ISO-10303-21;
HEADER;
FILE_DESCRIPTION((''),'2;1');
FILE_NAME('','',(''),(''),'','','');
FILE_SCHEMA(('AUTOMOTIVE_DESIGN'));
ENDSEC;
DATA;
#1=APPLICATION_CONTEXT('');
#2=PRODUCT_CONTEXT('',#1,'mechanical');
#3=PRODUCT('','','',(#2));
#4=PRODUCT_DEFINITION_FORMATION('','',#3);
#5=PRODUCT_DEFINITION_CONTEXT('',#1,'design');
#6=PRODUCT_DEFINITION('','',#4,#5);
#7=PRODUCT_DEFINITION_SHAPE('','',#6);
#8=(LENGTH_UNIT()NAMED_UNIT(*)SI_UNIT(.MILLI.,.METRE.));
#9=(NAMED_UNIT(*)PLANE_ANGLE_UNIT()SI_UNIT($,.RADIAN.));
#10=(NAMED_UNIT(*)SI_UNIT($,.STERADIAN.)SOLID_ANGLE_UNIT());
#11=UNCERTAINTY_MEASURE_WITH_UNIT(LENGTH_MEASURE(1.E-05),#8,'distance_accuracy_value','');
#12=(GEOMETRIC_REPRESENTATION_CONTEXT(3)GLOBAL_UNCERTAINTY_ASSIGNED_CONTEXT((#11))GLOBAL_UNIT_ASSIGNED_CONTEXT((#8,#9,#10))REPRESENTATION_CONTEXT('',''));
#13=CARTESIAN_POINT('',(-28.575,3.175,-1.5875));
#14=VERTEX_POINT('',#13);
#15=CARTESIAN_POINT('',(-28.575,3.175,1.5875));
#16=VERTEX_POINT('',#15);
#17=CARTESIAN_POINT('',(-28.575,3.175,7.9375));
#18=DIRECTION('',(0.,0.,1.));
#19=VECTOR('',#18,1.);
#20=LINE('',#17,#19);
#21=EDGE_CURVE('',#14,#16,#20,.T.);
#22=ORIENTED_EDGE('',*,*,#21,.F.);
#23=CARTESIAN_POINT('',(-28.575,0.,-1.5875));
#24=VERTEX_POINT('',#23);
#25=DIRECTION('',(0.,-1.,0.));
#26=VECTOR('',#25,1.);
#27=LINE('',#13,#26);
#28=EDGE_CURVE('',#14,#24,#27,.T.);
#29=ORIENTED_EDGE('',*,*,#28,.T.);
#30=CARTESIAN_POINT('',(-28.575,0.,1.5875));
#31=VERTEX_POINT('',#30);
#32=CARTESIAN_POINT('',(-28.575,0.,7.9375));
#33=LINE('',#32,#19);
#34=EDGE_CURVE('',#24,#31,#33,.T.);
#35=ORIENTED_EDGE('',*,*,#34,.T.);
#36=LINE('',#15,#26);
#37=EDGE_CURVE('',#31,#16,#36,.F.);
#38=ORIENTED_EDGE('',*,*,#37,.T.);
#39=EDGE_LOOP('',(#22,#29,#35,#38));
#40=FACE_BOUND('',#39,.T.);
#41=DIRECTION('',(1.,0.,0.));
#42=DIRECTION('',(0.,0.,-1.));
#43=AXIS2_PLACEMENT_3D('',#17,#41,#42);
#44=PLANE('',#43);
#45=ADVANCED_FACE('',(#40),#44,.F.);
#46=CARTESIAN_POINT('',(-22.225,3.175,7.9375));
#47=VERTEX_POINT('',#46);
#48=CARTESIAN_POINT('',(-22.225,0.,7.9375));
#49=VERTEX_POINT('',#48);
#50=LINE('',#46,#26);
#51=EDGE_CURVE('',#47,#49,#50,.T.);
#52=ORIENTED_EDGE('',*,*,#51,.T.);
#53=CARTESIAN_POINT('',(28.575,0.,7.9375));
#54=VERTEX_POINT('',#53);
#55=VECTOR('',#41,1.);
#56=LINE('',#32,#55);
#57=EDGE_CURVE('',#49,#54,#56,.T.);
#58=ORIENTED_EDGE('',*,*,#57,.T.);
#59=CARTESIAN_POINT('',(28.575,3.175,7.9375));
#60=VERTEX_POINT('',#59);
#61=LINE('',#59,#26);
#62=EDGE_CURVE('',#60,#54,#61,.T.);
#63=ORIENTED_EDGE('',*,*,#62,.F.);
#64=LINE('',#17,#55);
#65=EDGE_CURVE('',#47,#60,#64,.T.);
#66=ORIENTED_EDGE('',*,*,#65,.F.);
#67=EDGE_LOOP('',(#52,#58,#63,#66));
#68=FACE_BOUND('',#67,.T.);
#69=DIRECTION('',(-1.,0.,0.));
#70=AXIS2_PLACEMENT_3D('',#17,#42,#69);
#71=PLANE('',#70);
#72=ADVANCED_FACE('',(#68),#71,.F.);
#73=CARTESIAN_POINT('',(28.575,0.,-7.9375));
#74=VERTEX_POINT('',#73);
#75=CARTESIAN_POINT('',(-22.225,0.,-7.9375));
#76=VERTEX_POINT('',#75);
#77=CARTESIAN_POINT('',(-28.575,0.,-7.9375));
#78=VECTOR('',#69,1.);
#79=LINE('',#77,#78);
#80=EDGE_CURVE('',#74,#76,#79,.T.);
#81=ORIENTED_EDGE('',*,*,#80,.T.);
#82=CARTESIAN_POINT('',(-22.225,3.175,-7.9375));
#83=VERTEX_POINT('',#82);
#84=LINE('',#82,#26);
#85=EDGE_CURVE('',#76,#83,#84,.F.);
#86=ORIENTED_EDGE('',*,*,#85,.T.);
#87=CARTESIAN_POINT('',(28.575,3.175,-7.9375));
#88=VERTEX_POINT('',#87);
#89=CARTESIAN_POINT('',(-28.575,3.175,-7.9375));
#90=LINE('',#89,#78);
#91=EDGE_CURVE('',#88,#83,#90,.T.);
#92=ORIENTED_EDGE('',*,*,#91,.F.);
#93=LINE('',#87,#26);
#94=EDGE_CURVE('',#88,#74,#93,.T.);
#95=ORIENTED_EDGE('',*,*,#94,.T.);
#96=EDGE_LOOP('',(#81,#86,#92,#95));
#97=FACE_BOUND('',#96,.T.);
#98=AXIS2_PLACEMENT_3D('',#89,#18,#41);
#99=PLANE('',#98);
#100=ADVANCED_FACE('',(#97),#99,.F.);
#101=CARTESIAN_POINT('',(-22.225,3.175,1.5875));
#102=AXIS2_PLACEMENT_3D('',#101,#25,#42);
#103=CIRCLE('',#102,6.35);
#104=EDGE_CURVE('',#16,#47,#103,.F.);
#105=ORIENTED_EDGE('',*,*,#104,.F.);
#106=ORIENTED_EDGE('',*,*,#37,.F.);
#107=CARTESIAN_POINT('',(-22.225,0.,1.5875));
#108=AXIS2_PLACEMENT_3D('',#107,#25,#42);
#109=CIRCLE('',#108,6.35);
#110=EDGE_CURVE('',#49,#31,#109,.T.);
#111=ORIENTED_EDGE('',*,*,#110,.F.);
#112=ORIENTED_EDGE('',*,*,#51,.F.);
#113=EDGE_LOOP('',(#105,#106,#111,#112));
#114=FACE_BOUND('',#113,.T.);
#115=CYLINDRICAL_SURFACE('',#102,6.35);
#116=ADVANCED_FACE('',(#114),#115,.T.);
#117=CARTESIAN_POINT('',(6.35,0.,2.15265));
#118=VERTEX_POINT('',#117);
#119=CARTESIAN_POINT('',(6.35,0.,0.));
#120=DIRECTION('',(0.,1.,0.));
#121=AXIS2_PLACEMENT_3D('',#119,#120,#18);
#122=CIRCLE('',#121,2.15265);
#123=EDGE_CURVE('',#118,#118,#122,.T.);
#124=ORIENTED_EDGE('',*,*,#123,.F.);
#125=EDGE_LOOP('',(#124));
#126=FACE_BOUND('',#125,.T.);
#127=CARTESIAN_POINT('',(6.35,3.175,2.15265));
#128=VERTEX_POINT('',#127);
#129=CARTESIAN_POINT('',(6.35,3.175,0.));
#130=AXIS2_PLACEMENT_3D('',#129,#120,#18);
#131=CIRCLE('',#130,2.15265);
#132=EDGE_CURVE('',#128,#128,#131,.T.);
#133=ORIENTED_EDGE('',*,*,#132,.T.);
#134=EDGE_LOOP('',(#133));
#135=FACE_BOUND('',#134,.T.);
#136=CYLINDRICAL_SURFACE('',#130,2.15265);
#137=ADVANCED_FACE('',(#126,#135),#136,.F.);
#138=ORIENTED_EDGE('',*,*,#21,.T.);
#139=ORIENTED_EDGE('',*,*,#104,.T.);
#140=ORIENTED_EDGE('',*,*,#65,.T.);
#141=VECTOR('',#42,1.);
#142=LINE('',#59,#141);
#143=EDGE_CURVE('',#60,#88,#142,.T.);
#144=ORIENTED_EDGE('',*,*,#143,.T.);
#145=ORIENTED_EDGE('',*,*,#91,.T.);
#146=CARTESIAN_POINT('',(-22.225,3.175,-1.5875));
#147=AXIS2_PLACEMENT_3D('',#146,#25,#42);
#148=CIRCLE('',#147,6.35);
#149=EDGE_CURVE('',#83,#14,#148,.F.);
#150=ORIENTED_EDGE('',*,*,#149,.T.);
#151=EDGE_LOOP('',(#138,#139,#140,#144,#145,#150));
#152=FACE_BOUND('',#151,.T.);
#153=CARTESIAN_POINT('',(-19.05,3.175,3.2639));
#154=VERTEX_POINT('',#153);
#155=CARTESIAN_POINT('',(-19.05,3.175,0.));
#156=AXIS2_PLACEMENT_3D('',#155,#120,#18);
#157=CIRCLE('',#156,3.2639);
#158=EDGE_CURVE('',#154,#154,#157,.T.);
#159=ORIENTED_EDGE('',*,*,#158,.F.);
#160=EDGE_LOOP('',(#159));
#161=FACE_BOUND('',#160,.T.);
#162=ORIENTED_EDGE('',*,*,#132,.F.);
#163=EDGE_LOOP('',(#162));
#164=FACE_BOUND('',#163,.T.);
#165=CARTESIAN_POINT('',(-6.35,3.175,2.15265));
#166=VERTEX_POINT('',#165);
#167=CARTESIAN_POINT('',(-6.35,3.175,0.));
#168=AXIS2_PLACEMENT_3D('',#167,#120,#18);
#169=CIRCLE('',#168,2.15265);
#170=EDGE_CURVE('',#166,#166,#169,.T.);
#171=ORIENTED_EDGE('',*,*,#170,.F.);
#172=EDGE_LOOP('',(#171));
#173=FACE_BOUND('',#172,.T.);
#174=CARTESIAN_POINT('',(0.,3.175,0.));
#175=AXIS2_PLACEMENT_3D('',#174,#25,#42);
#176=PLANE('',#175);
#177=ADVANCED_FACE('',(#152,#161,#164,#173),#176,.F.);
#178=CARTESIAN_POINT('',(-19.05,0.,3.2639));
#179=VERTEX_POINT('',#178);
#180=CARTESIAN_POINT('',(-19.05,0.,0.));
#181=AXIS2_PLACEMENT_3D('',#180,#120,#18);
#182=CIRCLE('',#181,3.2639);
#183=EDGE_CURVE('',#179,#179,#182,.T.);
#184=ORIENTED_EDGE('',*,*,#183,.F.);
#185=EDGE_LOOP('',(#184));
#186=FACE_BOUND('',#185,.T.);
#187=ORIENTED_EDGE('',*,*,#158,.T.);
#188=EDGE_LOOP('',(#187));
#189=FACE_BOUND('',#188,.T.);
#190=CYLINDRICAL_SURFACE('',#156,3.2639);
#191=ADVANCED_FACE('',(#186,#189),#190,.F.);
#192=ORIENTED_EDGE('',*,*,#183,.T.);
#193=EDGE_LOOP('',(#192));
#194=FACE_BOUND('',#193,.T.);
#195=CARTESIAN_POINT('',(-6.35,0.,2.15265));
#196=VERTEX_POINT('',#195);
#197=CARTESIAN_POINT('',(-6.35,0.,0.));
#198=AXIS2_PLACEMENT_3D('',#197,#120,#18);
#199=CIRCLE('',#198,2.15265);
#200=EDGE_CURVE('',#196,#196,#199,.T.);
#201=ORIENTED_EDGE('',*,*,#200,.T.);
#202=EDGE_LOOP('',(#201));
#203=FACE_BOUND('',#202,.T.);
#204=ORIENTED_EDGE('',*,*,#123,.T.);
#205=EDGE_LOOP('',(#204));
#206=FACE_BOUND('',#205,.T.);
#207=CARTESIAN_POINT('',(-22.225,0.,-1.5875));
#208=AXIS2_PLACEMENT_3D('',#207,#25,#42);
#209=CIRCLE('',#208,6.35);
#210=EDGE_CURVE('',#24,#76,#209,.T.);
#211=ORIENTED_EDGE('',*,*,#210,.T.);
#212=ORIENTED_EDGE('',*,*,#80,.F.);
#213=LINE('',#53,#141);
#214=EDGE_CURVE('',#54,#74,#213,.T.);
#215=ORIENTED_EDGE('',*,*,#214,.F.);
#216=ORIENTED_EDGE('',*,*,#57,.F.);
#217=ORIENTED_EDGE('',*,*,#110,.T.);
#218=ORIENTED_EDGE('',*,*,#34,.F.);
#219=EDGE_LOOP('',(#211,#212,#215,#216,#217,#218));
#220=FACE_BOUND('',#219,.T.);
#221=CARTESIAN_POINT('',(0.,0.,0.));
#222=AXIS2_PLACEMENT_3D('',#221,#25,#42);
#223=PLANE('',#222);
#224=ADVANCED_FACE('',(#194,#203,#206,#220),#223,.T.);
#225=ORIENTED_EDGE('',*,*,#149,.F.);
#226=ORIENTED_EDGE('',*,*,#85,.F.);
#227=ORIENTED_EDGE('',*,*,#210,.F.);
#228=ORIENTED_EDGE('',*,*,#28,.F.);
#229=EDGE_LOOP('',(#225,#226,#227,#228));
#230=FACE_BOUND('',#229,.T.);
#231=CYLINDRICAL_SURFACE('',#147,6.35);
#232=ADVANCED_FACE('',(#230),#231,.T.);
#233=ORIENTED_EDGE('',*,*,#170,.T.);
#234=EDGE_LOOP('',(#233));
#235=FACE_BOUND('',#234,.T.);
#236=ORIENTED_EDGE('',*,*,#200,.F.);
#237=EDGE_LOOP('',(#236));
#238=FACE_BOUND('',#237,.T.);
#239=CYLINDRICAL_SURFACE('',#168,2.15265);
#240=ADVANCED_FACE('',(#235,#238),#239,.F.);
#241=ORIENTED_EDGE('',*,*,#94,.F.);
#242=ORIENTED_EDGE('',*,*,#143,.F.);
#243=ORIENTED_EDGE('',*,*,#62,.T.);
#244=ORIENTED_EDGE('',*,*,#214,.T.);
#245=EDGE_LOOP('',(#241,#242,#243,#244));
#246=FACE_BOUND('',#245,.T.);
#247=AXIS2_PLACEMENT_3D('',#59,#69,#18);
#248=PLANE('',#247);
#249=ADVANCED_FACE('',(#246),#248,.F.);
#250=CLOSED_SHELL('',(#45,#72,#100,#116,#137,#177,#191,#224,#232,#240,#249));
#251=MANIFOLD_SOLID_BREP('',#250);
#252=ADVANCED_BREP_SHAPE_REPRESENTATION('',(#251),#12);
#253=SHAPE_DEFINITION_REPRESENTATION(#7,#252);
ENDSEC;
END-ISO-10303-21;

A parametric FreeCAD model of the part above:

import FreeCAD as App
import Part
import Sketcher
Q = App.Units.Quantity


def edges_at(feature, points):
    """Names of the edges that pass closest to the given points."""
    edges = feature.Shape.Edges
    near = lambda p: min(range(len(edges)), key=lambda i: edges[i].distToShape(Part.Vertex(*p))[0])
    return sorted({f"Edge{near(p) + 1}" for p in points})

doc = App.newDocument("Part")
body = doc.addObject("PartDesign::Body", "Body")

# Sketch on XZ plane
sketch1 = body.newObject("Sketcher::SketchObject", "Sketch")
sketch1.AttachmentSupport = (doc.getObject("XZ_Plane"), [""])
sketch1.MapMode = "FlatFace"
sketch1.addGeometry([
    Part.LineSegment(App.Vector(-29, -8, 0), App.Vector(-29, 8, 0)),
    Part.LineSegment(App.Vector(-29, 8, 0), App.Vector(29, 8, 0)),
    Part.LineSegment(App.Vector(29, 8, 0), App.Vector(29, -8, 0)),
    Part.LineSegment(App.Vector(29, -8, 0), App.Vector(-29, -8, 0)),
], False)
sketch1.addConstraint([
    Sketcher.Constraint("Coincident", 0, 2, 1, 1),
    Sketcher.Constraint("Coincident", 1, 2, 2, 1),
    Sketcher.Constraint("Coincident", 2, 2, 3, 1),
    Sketcher.Constraint("Coincident", 3, 2, 0, 1),
    Sketcher.Constraint("Vertical", 0),
    Sketcher.Constraint("Horizontal", 1),
    Sketcher.Constraint("Vertical", 2),
    Sketcher.Constraint("Horizontal", 3),
    Sketcher.Constraint("Symmetric", 0, 2, 2, 2, -1, 1),
    Sketcher.Constraint("DistanceX", 1, 1, 1, 2, Q("2.25 in")),
    Sketcher.Constraint("DistanceY", 0, 1, 0, 2, Q("0.625 in")),
])
pad1 = body.newObject("PartDesign::Pad", "Pad")
pad1.Profile = sketch1
pad1.Length = Q("0.125 in")
pad1.Reversed = True

# Sketch on XZ plane
sketch2 = body.newObject("Sketcher::SketchObject", "Sketch001")
sketch2.AttachmentSupport = (doc.getObject("XZ_Plane"), [""])
sketch2.MapMode = "FlatFace"
sketch2.AttachmentOffset = App.Placement(App.Vector(0, 0, -0.125 * 25.4), App.Rotation())
sketch2.addGeometry(Part.Circle(App.Vector(-19.1, 0, 0), App.Vector(0, 0, 1), 3.3), False)
sketch2.addConstraint([
    Sketcher.Constraint("PointOnObject", 0, 3, -1),
    Sketcher.Constraint("Diameter", 0, Q("0.257 in")),
    Sketcher.Constraint("DistanceX", 0, 3, -1, 1, Q("0.75 in")),
])
doc.recompute()
hole = body.newObject("PartDesign::Hole", "Hole")
hole.Profile = sketch2
hole.ThreadType = "None"
hole.Diameter = Q("0.257 in")
hole.DepthType = "ThroughAll"
hole.Reversed = True
doc.recompute()

fillet = body.newObject("PartDesign::Fillet", "Fillet")
fillet.Base = (hole, edges_at(hole, [(-28.575, 1.587, 7.938), (-28.575, 1.587, -7.938)]))
fillet.Radius = Q("0.25 in")

# Sketch on XZ plane
sketch3 = body.newObject("Sketcher::SketchObject", "Sketch002")
sketch3.AttachmentSupport = (doc.getObject("XZ_Plane"), [""])
sketch3.MapMode = "FlatFace"
sketch3.AttachmentOffset = App.Placement(App.Vector(0, 0, -0.125 * 25.4), App.Rotation())
sketch3.addGeometry([
    Part.Circle(App.Vector(-6.3, 0, 0), App.Vector(0, 0, 1), 2.2),
    Part.Circle(App.Vector(6.3, 0, 0), App.Vector(0, 0, 1), 2.2),
], False)
sketch3.addConstraint([
    Sketcher.Constraint("Equal", 0, 1),
    Sketcher.Constraint("Symmetric", 0, 3, 1, 3, -1, 1),
    Sketcher.Constraint("PointOnObject", 0, 3, -1),
    Sketcher.Constraint("Diameter", 0, Q("0.1695 in")),
    Sketcher.Constraint("DistanceX", 0, 3, 1, 3, Q("0.5 in")),
])
doc.recompute()
hole2 = body.newObject("PartDesign::Hole", "Hole001")
hole2.Profile = sketch3
hole2.ThreadType = "None"
hole2.Diameter = Q("0.1695 in")
hole2.DepthType = "ThroughAll"
hole2.Reversed = True

doc.recompute()
